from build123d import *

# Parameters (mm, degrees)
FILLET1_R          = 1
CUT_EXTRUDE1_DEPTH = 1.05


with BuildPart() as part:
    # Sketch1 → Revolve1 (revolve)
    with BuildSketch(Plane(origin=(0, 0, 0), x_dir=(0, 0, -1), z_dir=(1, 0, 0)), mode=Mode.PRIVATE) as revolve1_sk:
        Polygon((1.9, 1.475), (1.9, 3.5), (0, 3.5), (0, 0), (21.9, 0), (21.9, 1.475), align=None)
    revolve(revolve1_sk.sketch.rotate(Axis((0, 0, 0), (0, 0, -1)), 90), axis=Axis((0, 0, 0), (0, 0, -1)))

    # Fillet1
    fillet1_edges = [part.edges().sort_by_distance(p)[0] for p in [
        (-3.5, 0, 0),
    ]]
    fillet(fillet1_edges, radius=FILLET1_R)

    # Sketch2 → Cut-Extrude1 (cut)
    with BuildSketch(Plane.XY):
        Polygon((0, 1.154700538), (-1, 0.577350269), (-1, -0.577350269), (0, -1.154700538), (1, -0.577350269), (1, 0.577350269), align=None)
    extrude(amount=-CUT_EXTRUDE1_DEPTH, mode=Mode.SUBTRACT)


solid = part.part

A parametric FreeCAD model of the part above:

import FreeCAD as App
import Part
import Sketcher

V = App.Vector
Q = App.Units.Quantity


def edges_at(feature, points):
    """Names of the edges that pass closest to the given points."""
    edges = feature.Shape.Edges
    near = lambda p: min(range(len(edges)), key=lambda i: edges[i].distToShape(Part.Vertex(*p))[0])
    return sorted({f"Edge{near(p) + 1}" for p in points})


def add_polygon(sketch, points):
    """Adds a closed chain of lines whose ends are joined by coincident constraints."""
    first, n = sketch.GeometryCount, len(points)
    for a, b in zip(points, points[1:] + points[:1]):
        sketch.addGeometry(Part.LineSegment(App.Vector(*a, 0), App.Vector(*b, 0)), False)
    for i in range(n):
        sketch.addConstraint(Sketcher.Constraint("Coincident", first + i, 2, first + (i + 1) % n, 1))

doc = App.newDocument("Part")
params = doc.addObject("Spreadsheet::Sheet", "Params")
for row, (alias, value) in enumerate([
    ("sketch1_height", "20 mm"),
    ("sketch1_width", "3.5 mm"),
    ("sketch1_height2", "1.9 mm"),
    ("revolution_angle", "360 deg"),
    ("fillet_radius", "1 mm"),
    ("pocket1_length", "1.05 mm"),
], start=1):
    params.set(f"A{row}", alias)
    params.set(f"B{row}", "=" + value)
    params.setAlias(f"B{row}", alias)

body = doc.addObject("PartDesign::Body", "Body")

sketch1 = body.newObject("Sketcher::SketchObject", "Sketch")
sketch1.AttachmentSupport = (doc.getObject("YZ_Plane"), [""])
sketch1.MapMode = "FlatFace"
add_polygon(sketch1, [(1.5, -1.9), (3.5, -1.9), (3.5, 0), (0, 0), (0, -21.9), (1.5, -21.9)])
sketch1.addConstraint(Sketcher.Constraint("Horizontal", 0))
sketch1.addConstraint(Sketcher.Constraint("Vertical", 1))
sketch1.addConstraint(Sketcher.Constraint("Horizontal", 2))
sketch1.addConstraint(Sketcher.Constraint("Vertical", 3))
sketch1.addConstraint(Sketcher.Constraint("Horizontal", 4))
sketch1.addConstraint(Sketcher.Constraint("Vertical", 5))
sketch1.addConstraint(Sketcher.Constraint("Coincident", 2, 2, -1, 1))
sketch1.addConstraint(Sketcher.Constraint("DistanceY", 5, 1, 5, 2, 20.0))
sketch1.addConstraint(Sketcher.Constraint("DistanceX", 2, 2, 2, 1, 3.5))
sketch1.addConstraint(Sketcher.Constraint("DistanceY", 1, 1, 1, 2, 1.9))
sketch1.addConstraint(Sketcher.Constraint("DistanceX", 0, 1, 0, 2, 2.025))
sketch1.setExpression("Constraints[13]", "Params.sketch1_height")
sketch1.setExpression("Constraints[14]", "Params.sketch1_width")
sketch1.setExpression("Constraints[15]", "Params.sketch1_height2")
revolution = body.newObject("PartDesign::Revolution", "Revolution")
revolution.Profile = sketch1
revolution.ReferenceAxis = (sketch1, ["V_Axis"])
revolution.setExpression("Angle", "Params.revolution_angle")
doc.recompute()

fillet = body.newObject("PartDesign::Fillet", "Fillet")
fillet.Base = (revolution, edges_at(revolution, [(-3.5, 0, 0)]))
fillet.setExpression("Radius", "Params.fillet_radius")

sketch2 = body.newObject("Sketcher::SketchObject", "Sketch001")
sketch2.AttachmentSupport = (doc.getObject("XY_Plane"), [""])
sketch2.MapMode = "FlatFace"
add_polygon(sketch2, [(0, 1.2), (-1, 0.6), (-1, -0.6), (0, -1.2), (1, -0.6), (1, 0.6)])
sketch2.addConstraint(Sketcher.Constraint("Vertical", 1))
sketch2.addConstraint(Sketcher.Constraint("Vertical", 4))
sketch2.addConstraint(Sketcher.Constraint("Symmetric", 0, 2, 3, 2, -1, 1))
sketch2.addConstraint(Sketcher.Constraint("Symmetric", 2, 2, 5, 2, -1, 1))
sketch2.addConstraint(Sketcher.Constraint("PointOnObject", 2, 2, -2))
sketch2.addConstraint(Sketcher.Constraint("Parallel", 2, 5))
sketch2.addConstraint(Sketcher.Constraint("Horizontal", 1, 2, 3, 2))
sketch2.addConstraint(Sketcher.Constraint("Angle", 0, Q("-150 deg")))
sketch2.addConstraint(Sketcher.Constraint("DistanceX", 0, 2, -1, 1, 1.0))
sketch2.addConstraint(Sketcher.Constraint("DistanceY", 1, 2, 1, 1, 1.154701))
pocket1 = body.newObject("PartDesign::Pocket", "Pocket")
pocket1.Profile = sketch2
pocket1.setExpression("Length", "Params.pocket1_length")

doc.recompute()
